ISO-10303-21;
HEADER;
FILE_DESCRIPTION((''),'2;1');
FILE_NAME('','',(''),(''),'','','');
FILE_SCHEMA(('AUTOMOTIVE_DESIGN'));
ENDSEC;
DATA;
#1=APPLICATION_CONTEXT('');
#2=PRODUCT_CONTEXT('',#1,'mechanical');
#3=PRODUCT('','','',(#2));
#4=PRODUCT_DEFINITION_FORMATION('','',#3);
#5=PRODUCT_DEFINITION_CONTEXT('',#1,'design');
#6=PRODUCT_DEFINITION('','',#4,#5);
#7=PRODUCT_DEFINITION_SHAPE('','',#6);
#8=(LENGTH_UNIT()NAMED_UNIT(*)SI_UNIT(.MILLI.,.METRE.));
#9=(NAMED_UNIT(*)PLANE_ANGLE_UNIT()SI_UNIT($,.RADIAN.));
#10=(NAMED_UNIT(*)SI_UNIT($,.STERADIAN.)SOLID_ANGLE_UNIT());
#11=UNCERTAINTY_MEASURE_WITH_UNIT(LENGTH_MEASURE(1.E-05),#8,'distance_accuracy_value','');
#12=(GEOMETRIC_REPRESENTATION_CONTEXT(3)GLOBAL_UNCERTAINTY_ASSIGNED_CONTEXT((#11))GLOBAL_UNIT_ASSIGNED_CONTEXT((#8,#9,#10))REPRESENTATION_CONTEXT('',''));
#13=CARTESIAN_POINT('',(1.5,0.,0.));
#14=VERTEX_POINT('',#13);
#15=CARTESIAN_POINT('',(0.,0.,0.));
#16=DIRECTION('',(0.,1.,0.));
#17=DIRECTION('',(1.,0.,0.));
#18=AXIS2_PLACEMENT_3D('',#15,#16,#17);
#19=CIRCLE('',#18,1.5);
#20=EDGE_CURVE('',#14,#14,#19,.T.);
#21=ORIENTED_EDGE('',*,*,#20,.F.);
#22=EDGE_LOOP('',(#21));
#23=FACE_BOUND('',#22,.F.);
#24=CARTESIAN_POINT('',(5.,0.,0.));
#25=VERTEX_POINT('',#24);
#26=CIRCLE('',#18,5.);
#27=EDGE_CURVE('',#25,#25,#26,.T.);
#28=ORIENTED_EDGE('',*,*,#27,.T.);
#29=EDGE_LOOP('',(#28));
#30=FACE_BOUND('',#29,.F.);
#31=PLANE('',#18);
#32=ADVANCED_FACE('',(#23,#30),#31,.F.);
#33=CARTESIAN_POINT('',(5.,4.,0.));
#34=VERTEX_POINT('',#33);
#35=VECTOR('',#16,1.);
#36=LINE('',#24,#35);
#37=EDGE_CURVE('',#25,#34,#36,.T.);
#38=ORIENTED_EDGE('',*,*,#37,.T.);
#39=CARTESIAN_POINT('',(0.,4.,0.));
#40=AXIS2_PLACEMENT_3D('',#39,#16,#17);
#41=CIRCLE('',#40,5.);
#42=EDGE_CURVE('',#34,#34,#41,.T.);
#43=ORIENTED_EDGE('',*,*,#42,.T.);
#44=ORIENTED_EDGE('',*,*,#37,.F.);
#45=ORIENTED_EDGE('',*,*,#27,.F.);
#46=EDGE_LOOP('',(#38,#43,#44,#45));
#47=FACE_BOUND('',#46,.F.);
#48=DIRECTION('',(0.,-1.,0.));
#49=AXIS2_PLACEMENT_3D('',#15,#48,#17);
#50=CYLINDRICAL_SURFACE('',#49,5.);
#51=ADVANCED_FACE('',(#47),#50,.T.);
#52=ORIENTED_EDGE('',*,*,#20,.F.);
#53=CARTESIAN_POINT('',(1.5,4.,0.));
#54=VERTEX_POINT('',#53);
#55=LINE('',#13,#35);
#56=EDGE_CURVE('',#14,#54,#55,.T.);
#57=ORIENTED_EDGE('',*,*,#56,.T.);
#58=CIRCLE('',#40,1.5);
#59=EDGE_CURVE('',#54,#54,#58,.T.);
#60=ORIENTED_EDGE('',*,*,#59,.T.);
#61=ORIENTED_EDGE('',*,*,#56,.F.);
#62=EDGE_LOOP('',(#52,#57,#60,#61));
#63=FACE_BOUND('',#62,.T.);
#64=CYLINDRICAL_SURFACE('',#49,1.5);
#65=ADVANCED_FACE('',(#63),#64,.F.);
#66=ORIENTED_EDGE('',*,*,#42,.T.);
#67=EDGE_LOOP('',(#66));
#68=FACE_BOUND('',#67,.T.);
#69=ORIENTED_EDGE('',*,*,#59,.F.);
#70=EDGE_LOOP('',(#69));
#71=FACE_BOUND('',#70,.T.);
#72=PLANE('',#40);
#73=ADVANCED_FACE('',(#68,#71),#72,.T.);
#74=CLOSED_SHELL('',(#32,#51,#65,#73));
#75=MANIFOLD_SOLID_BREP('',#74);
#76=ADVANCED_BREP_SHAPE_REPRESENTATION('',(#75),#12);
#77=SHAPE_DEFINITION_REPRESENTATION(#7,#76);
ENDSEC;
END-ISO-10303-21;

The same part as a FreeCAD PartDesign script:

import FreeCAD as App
import Part
import Sketcher

V = App.Vector

doc = App.newDocument("Part")
body = doc.addObject("PartDesign::Body", "Body")

sketch1 = doc.addObject("Sketcher::SketchObject", "Sketch")
body.addObject(sketch1)
sketch1.AttachmentSupport = (doc.XZ_Plane, [""])
sketch1.MapMode = "FlatFace"
sketch1.addGeometry([
    Part.Circle(V(0, 0, 0), V(0, 0, 1), 5),
    Part.Circle(V(0, 0, 0), V(0, 0, 1), 1.5),
], False)
sketch1.addConstraint([
    Sketcher.Constraint("Coincident", 0, 3, -1, 1),
    Sketcher.Constraint("Coincident", 1, 3, -1, 1),
    Sketcher.Constraint("Diameter", 0, 10.0),
    Sketcher.Constraint("Diameter", 1, 3.0),
])
pad1 = doc.addObject("PartDesign::Pad", "Pad")
body.addObject(pad1)
pad1.Profile = sketch1
pad1.Length = 4
pad1.Reversed = True

doc.recompute()
